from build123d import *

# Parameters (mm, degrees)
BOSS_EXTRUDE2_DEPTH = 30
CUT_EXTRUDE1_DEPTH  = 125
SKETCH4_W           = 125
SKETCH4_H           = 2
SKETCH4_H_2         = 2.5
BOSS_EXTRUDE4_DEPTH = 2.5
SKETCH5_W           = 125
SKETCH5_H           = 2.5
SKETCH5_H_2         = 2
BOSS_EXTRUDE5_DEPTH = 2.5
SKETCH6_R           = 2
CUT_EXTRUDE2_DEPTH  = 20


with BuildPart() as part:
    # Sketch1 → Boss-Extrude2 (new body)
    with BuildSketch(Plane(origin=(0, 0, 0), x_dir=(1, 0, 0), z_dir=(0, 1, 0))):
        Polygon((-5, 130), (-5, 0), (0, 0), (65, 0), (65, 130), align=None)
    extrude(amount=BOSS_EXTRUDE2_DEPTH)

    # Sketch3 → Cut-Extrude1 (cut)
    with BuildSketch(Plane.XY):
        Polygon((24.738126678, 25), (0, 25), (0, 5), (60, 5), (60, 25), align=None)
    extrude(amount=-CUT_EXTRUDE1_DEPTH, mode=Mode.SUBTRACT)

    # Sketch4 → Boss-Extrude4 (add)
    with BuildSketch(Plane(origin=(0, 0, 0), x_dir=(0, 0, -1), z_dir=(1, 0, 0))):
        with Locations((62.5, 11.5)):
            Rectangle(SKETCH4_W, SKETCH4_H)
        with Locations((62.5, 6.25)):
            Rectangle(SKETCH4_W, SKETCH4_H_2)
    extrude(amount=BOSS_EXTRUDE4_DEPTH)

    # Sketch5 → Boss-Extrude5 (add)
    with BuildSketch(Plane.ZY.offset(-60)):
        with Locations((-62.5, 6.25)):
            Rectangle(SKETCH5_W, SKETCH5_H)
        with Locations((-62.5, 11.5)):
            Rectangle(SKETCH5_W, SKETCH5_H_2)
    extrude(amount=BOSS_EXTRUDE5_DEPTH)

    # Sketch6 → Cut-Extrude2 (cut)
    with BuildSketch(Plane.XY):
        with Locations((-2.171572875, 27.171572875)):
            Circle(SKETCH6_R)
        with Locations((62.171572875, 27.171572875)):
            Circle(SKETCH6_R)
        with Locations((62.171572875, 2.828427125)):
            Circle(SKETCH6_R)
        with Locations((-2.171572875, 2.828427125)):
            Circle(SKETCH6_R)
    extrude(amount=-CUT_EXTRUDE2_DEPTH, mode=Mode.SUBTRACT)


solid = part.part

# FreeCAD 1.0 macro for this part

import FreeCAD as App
import Part
import Sketcher
from FreeCAD import Vector

doc = App.newDocument("Part")
body = doc.addObject("PartDesign::Body", "Body")

sketch1 = doc.addObject("Sketcher::SketchObject", "Sketch")
body.addObject(sketch1)
sketch1.AttachmentSupport = (doc.XZ_Plane, [""])
sketch1.MapMode = "FlatFace"
sketch1.addGeometry(Part.LineSegment(Vector(-5, -130, 0), Vector(-5, 0, 0)), False)
sketch1.addGeometry(Part.LineSegment(Vector(-5, 0, 0), Vector(65, 0, 0)), False)
sketch1.addGeometry(Part.LineSegment(Vector(65, 0, 0), Vector(65, -130, 0)), False)
sketch1.addGeometry(Part.LineSegment(Vector(65, -130, 0), Vector(-5, -130, 0)), False)
sketch1.addConstraint(Sketcher.Constraint("Coincident", 0, 2, 1, 1))
sketch1.addConstraint(Sketcher.Constraint("Coincident", 1, 2, 2, 1))
sketch1.addConstraint(Sketcher.Constraint("Coincident", 2, 2, 3, 1))
sketch1.addConstraint(Sketcher.Constraint("Coincident", 3, 2, 0, 1))
sketch1.addConstraint(Sketcher.Constraint("Vertical", 0))
sketch1.addConstraint(Sketcher.Constraint("Horizontal", 1))
sketch1.addConstraint(Sketcher.Constraint("Vertical", 2))
sketch1.addConstraint(Sketcher.Constraint("Horizontal", 3))
sketch1.addConstraint(Sketcher.Constraint("PointOnObject", 0, 2, -1))
sketch1.addConstraint(Sketcher.Constraint("DistanceX", 1, 1, 1, 2, 70.0))
sketch1.addConstraint(Sketcher.Constraint("DistanceY", 0, 1, 0, 2, 130.0))
sketch1.addConstraint(Sketcher.Constraint("DistanceX", 0, 2, -1, 1, 5.0))
pad1 = doc.addObject("PartDesign::Pad", "Pad")
body.addObject(pad1)
pad1.Profile = sketch1
pad1.Length = 30
pad1.Reversed = True

sketch2 = doc.addObject("Sketcher::SketchObject", "Sketch001")
body.addObject(sketch2)
sketch2.AttachmentSupport = (doc.XY_Plane, [""])
sketch2.MapMode = "FlatFace"
sketch2.addGeometry(Part.LineSegment(Vector(0, 25, 0), Vector(0, 5, 0)), False)
sketch2.addGeometry(Part.LineSegment(Vector(0, 5, 0), Vector(60, 5, 0)), False)
sketch2.addGeometry(Part.LineSegment(Vector(60, 5, 0), Vector(60, 25, 0)), False)
sketch2.addGeometry(Part.LineSegment(Vector(60, 25, 0), Vector(0, 25, 0)), False)
sketch2.addConstraint(Sketcher.Constraint("Coincident", 0, 2, 1, 1))
sketch2.addConstraint(Sketcher.Constraint("Coincident", 1, 2, 2, 1))
sketch2.addConstraint(Sketcher.Constraint("Coincident", 2, 2, 3, 1))
sketch2.addConstraint(Sketcher.Constraint("Coincident", 3, 2, 0, 1))
sketch2.addConstraint(Sketcher.Constraint("Vertical", 0))
sketch2.addConstraint(Sketcher.Constraint("Horizontal", 1))
sketch2.addConstraint(Sketcher.Constraint("Vertical", 2))
sketch2.addConstraint(Sketcher.Constraint("Horizontal", 3))
sketch2.addConstraint(Sketcher.Constraint("PointOnObject", 0, 2, -2))
sketch2.addConstraint(Sketcher.Constraint("DistanceX", 1, 1, 1, 2, 60.0))
sketch2.addConstraint(Sketcher.Constraint("DistanceY", 0, 2, 0, 1, 20.0))
sketch2.addConstraint(Sketcher.Constraint("DistanceY", -1, 1, 0, 2, 5.0))
pocket1 = doc.addObject("PartDesign::Pocket", "Pocket")
body.addObject(pocket1)
pocket1.Profile = sketch2
pocket1.Length = 125

sketch3 = doc.addObject("Sketcher::SketchObject", "Sketch002")
body.addObject(sketch3)
sketch3.AttachmentSupport = (doc.YZ_Plane, [""])
sketch3.MapMode = "FlatFace"
sketch3.addGeometry(Part.LineSegment(Vector(12.5, 0, 0), Vector(10.5, 0, 0)), False)
sketch3.addGeometry(Part.LineSegment(Vector(10.5, 0, 0), Vector(10.5, -125, 0)), False)
sketch3.addGeometry(Part.LineSegment(Vector(10.5, -125, 0), Vector(12.5, -125, 0)), False)
sketch3.addGeometry(Part.LineSegment(Vector(12.5, -125, 0), Vector(12.5, 0, 0)), False)
sketch3.addGeometry(Part.LineSegment(Vector(7.5, 0, 0), Vector(5, 0, 0)), False)
sketch3.addGeometry(Part.LineSegment(Vector(5, 0, 0), Vector(5, -125, 0)), False)
sketch3.addGeometry(Part.LineSegment(Vector(5, -125, 0), Vector(7.5, -125, 0)), False)
sketch3.addGeometry(Part.LineSegment(Vector(7.5, -125, 0), Vector(7.5, 0, 0)), False)
sketch3.addConstraint(Sketcher.Constraint("Coincident", 0, 2, 1, 1))
sketch3.addConstraint(Sketcher.Constraint("Coincident", 1, 2, 2, 1))
sketch3.addConstraint(Sketcher.Constraint("Coincident", 2, 2, 3, 1))
sketch3.addConstraint(Sketcher.Constraint("Coincident", 3, 2, 0, 1))
sketch3.addConstraint(Sketcher.Constraint("Coincident", 4, 2, 5, 1))
sketch3.addConstraint(Sketcher.Constraint("Coincident", 5, 2, 6, 1))
sketch3.addConstraint(Sketcher.Constraint("Coincident", 6, 2, 7, 1))
sketch3.addConstraint(Sketcher.Constraint("Coincident", 7, 2, 4, 1))
sketch3.addConstraint(Sketcher.Constraint("Horizontal", 0))
sketch3.addConstraint(Sketcher.Constraint("Vertical", 1))
sketch3.addConstraint(Sketcher.Constraint("Horizontal", 2))
sketch3.addConstraint(Sketcher.Constraint("Vertical", 3))
sketch3.addConstraint(Sketcher.Constraint("Horizontal", 4))
sketch3.addConstraint(Sketcher.Constraint("Vertical", 5))
sketch3.addConstraint(Sketcher.Constraint("Horizontal", 6))
sketch3.addConstraint(Sketcher.Constraint("Vertical", 7))
sketch3.addConstraint(Sketcher.Constraint("PointOnObject", 0, 2, -1))
sketch3.addConstraint(Sketcher.Constraint("PointOnObject", 4, 2, -1))
sketch3.addConstraint(Sketcher.Constraint("Horizontal", 2, 2, 5, 2))
sketch3.addConstraint(Sketcher.Constraint("DistanceX", 0, 2, 0, 1, 2.0))
sketch3.addConstraint(Sketcher.Constraint("DistanceY", 1, 2, 1, 1, 125.0))
sketch3.addConstraint(Sketcher.Constraint("DistanceX", 4, 2, 4, 1, 2.5))
sketch3.addConstraint(Sketcher.Constraint("DistanceX", -1, 1, 4, 2, 5.0))
sketch3.addConstraint(Sketcher.Constraint("DistanceX", 6, 2, 1, 2, 3.0))
pad2 = doc.addObject("PartDesign::Pad", "Pad001")
body.addObject(pad2)
pad2.Profile = sketch3
pad2.Length = 2.5

sketch4 = doc.addObject("Sketcher::SketchObject", "Sketch003")
body.addObject(sketch4)
sketch4.AttachmentSupport = (doc.YZ_Plane, [""])
sketch4.MapMode = "FlatFace"
sketch4.AttachmentOffset = App.Placement(Vector(0, 0, 60), App.Rotation())
sketch4.addGeometry(Part.LineSegment(Vector(7.5, -125, 0), Vector(5, -125, 0)), False)
sketch4.addGeometry(Part.LineSegment(Vector(5, -125, 0), Vector(5, 0, 0)), False)
sketch4.addGeometry(Part.LineSegment(Vector(5, 0, 0), Vector(7.5, 0, 0)), False)
sketch4.addGeometry(Part.LineSegment(Vector(7.5, 0, 0), Vector(7.5, -125, 0)), False)
sketch4.addGeometry(Part.LineSegment(Vector(12.5, -125, 0), Vector(10.5, -125, 0)), False)
sketch4.addGeometry(Part.LineSegment(Vector(10.5, -125, 0), Vector(10.5, 0, 0)), False)
sketch4.addGeometry(Part.LineSegment(Vector(10.5, 0, 0), Vector(12.5, 0, 0)), False)
sketch4.addGeometry(Part.LineSegment(Vector(12.5, 0, 0), Vector(12.5, -125, 0)), False)
sketch4.addConstraint(Sketcher.Constraint("Coincident", 0, 2, 1, 1))
sketch4.addConstraint(Sketcher.Constraint("Coincident", 1, 2, 2, 1))
sketch4.addConstraint(Sketcher.Constraint("Coincident", 2, 2, 3, 1))
sketch4.addConstraint(Sketcher.Constraint("Coincident", 3, 2, 0, 1))
sketch4.addConstraint(Sketcher.Constraint("Coincident", 4, 2, 5, 1))
sketch4.addConstraint(Sketcher.Constraint("Coincident", 5, 2, 6, 1))
sketch4.addConstraint(Sketcher.Constraint("Coincident", 6, 2, 7, 1))
sketch4.addConstraint(Sketcher.Constraint("Coincident", 7, 2, 4, 1))
sketch4.addConstraint(Sketcher.Constraint("Horizontal", 0))
sketch4.addConstraint(Sketcher.Constraint("Vertical", 1))
sketch4.addConstraint(Sketcher.Constraint("Horizontal", 2))
sketch4.addConstraint(Sketcher.Constraint("Vertical", 3))
sketch4.addConstraint(Sketcher.Constraint("Horizontal", 4))
sketch4.addConstraint(Sketcher.Constraint("Vertical", 5))
sketch4.addConstraint(Sketcher.Constraint("Horizontal", 6))
sketch4.addConstraint(Sketcher.Constraint("Vertical", 7))
sketch4.addConstraint(Sketcher.Constraint("PointOnObject", 1, 2, -1))
sketch4.addConstraint(Sketcher.Constraint("PointOnObject", 5, 2, -1))
sketch4.addConstraint(Sketcher.Constraint("Horizontal", 3, 2, 4, 2))
sketch4.addConstraint(Sketcher.Constraint("DistanceX", 4, 2, 4, 1, 2.0))
sketch4.addConstraint(Sketcher.Constraint("DistanceY", 1, 1, 1, 2, 125.0))
sketch4.addConstraint(Sketcher.Constraint("DistanceX", 0, 2, 0, 1, 2.5))
sketch4.addConstraint(Sketcher.Constraint("DistanceX", -1, 1, 0, 2, 5.0))
sketch4.addConstraint(Sketcher.Constraint("DistanceX", 3, 2, 4, 2, 3.0))
pad3 = doc.addObject("PartDesign::Pad", "Pad002")
body.addObject(pad3)
pad3.Profile = sketch4
pad3.Length = 2.5
pad3.Reversed = True

sketch5 = doc.addObject("Sketcher::SketchObject", "Sketch004")
body.addObject(sketch5)
sketch5.AttachmentSupport = (doc.XY_Plane, [""])
sketch5.MapMode = "FlatFace"
sketch5.addGeometry(Part.Circle(Vector(-2.2, 27.2, 0), Vector(0, 0, 1), 2), False)
sketch5.addGeometry(Part.Circle(Vector(62.2, 27.2, 0), Vector(0, 0, 1), 2), False)
sketch5.addGeometry(Part.Circle(Vector(62.2, 2.8, 0), Vector(0, 0, 1), 2), False)
sketch5.addGeometry(Part.Circle(Vector(-2.2, 2.8, 0), Vector(0, 0, 1), 2), False)
sketch5.addConstraint(Sketcher.Constraint("Equal", 0, 1))
sketch5.addConstraint(Sketcher.Constraint("Equal", 1, 2))
sketch5.addConstraint(Sketcher.Constraint("Equal", 2, 3))
sketch5.addConstraint(Sketcher.Constraint("Horizontal", 0, 3, 1, 3))
sketch5.addConstraint(Sketcher.Constraint("Horizontal", 2, 3, 3, 3))
sketch5.addConstraint(Sketcher.Constraint("Vertical", 1, 3, 2, 3))
sketch5.addConstraint(Sketcher.Constraint("Vertical", 0, 3, 3, 3))
sketch5.addConstraint(Sketcher.Constraint("Diameter", 0, 4.0))
sketch5.addConstraint(Sketcher.Constraint("DistanceX", 0, 3, -1, 1, 2.171573))
sketch5.addConstraint(Sketcher.Constraint("DistanceY", -1, 1, 0, 3, 27.171573))
sketch5.addConstraint(Sketcher.Constraint("DistanceX", -1, 1, 1, 3, 62.171573))
sketch5.addConstraint(Sketcher.Constraint("DistanceY", -1, 1, 2, 3, 2.828427))
pocket2 = doc.addObject("PartDesign::Pocket", "Pocket001")
body.addObject(pocket2)
pocket2.Profile = sketch5
pocket2.Length = 20

doc.recompute()
